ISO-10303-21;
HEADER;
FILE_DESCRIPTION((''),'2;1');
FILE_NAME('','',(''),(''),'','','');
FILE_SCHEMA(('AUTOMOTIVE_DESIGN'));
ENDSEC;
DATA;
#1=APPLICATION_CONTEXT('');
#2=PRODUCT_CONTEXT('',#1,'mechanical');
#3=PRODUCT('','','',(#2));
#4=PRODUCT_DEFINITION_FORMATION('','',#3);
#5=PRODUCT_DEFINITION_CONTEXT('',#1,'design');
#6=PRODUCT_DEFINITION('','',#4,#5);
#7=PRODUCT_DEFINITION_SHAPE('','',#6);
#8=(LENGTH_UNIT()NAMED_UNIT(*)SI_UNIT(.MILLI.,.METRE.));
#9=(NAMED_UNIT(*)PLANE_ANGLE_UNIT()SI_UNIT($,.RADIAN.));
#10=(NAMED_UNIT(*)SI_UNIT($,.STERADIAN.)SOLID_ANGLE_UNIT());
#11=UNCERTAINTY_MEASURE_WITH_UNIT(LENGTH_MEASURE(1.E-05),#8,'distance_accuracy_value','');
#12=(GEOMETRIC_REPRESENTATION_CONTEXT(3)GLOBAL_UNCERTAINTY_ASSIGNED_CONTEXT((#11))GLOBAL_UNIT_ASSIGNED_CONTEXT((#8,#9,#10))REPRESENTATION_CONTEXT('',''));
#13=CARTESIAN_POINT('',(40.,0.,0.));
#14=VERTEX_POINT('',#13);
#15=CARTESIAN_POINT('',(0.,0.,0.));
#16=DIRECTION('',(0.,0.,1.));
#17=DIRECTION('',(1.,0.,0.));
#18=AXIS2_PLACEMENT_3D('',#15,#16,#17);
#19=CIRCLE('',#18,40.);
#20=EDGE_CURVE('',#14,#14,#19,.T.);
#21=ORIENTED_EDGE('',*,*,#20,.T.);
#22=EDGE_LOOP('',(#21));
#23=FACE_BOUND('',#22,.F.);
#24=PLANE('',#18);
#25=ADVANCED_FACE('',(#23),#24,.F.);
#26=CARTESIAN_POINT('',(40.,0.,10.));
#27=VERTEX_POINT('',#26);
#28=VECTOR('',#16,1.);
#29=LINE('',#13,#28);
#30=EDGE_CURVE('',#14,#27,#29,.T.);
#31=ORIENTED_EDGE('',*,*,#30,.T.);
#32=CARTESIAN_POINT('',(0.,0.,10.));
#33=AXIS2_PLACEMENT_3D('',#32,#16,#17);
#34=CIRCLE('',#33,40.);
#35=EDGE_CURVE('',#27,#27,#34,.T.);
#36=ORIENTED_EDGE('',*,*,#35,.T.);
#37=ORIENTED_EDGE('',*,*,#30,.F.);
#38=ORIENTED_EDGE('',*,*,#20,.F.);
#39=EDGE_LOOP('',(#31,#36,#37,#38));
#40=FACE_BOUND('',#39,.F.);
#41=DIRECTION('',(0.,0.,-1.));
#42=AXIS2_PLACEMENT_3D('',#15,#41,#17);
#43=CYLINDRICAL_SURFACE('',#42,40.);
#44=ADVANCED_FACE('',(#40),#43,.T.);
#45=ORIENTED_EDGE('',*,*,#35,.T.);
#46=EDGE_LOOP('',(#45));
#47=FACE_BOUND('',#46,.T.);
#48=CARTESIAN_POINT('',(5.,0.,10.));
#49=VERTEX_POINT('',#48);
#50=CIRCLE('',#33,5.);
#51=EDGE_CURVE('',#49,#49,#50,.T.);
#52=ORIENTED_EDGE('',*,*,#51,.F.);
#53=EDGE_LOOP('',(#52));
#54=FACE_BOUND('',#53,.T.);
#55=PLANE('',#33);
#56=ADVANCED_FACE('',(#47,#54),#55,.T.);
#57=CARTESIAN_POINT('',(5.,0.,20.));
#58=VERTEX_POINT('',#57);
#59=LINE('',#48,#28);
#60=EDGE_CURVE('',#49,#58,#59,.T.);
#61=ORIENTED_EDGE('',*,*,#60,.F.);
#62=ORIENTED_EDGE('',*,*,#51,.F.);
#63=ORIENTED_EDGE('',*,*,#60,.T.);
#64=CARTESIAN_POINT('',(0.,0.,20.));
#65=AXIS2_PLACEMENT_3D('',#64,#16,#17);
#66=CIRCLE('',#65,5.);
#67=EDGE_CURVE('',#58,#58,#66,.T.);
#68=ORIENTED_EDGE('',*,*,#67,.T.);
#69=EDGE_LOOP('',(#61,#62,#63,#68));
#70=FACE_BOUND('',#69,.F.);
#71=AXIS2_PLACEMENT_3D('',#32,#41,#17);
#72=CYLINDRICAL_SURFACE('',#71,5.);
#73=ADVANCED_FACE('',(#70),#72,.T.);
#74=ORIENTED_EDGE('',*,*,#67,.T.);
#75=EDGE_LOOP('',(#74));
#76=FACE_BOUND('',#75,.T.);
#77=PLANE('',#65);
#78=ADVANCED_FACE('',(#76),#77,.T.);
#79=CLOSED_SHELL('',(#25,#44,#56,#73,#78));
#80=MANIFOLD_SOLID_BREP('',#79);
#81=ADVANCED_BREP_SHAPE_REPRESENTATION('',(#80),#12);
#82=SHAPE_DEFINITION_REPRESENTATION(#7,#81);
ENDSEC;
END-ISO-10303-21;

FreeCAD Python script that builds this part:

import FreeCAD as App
import Part
import Sketcher
Q = App.Units.Quantity

doc = App.newDocument("Part")
body = doc.addObject("PartDesign::Body", "Body")

sketch1 = doc.addObject("Sketcher::SketchObject", "Sketch")
body.addObject(sketch1)
sketch1.AttachmentSupport = (doc.XY_Plane, [""])
sketch1.MapMode = "FlatFace"
sketch1.addGeometry(Part.Circle(App.Vector(0, 0, 0), App.Vector(0, 0, 1), 40), False)
sketch1.addConstraint(Sketcher.Constraint("Coincident", 0, 3, -1, 1))
sketch1.addConstraint(Sketcher.Constraint("Diameter", 0, Q("80 mm")))
pad1 = doc.addObject("PartDesign::Pad", "Pad")
body.addObject(pad1)
pad1.Profile = sketch1
pad1.Length = 10

sketch2 = doc.addObject("Sketcher::SketchObject", "Sketch001")
body.addObject(sketch2)
sketch2.AttachmentSupport = (doc.XY_Plane, [""])
sketch2.MapMode = "FlatFace"
sketch2.AttachmentOffset = App.Placement(App.Vector(0, 0, 10), App.Rotation())
sketch2.addGeometry(Part.Circle(App.Vector(0, 0, 0), App.Vector(0, 0, 1), 5), False)
sketch2.addConstraint(Sketcher.Constraint("Coincident", 0, 3, -1, 1))
sketch2.addConstraint(Sketcher.Constraint("Diameter", 0, Q("10 mm")))
pad2 = doc.addObject("PartDesign::Pad", "Pad001")
body.addObject(pad2)
pad2.Profile = sketch2
pad2.Length = 10

doc.recompute()
